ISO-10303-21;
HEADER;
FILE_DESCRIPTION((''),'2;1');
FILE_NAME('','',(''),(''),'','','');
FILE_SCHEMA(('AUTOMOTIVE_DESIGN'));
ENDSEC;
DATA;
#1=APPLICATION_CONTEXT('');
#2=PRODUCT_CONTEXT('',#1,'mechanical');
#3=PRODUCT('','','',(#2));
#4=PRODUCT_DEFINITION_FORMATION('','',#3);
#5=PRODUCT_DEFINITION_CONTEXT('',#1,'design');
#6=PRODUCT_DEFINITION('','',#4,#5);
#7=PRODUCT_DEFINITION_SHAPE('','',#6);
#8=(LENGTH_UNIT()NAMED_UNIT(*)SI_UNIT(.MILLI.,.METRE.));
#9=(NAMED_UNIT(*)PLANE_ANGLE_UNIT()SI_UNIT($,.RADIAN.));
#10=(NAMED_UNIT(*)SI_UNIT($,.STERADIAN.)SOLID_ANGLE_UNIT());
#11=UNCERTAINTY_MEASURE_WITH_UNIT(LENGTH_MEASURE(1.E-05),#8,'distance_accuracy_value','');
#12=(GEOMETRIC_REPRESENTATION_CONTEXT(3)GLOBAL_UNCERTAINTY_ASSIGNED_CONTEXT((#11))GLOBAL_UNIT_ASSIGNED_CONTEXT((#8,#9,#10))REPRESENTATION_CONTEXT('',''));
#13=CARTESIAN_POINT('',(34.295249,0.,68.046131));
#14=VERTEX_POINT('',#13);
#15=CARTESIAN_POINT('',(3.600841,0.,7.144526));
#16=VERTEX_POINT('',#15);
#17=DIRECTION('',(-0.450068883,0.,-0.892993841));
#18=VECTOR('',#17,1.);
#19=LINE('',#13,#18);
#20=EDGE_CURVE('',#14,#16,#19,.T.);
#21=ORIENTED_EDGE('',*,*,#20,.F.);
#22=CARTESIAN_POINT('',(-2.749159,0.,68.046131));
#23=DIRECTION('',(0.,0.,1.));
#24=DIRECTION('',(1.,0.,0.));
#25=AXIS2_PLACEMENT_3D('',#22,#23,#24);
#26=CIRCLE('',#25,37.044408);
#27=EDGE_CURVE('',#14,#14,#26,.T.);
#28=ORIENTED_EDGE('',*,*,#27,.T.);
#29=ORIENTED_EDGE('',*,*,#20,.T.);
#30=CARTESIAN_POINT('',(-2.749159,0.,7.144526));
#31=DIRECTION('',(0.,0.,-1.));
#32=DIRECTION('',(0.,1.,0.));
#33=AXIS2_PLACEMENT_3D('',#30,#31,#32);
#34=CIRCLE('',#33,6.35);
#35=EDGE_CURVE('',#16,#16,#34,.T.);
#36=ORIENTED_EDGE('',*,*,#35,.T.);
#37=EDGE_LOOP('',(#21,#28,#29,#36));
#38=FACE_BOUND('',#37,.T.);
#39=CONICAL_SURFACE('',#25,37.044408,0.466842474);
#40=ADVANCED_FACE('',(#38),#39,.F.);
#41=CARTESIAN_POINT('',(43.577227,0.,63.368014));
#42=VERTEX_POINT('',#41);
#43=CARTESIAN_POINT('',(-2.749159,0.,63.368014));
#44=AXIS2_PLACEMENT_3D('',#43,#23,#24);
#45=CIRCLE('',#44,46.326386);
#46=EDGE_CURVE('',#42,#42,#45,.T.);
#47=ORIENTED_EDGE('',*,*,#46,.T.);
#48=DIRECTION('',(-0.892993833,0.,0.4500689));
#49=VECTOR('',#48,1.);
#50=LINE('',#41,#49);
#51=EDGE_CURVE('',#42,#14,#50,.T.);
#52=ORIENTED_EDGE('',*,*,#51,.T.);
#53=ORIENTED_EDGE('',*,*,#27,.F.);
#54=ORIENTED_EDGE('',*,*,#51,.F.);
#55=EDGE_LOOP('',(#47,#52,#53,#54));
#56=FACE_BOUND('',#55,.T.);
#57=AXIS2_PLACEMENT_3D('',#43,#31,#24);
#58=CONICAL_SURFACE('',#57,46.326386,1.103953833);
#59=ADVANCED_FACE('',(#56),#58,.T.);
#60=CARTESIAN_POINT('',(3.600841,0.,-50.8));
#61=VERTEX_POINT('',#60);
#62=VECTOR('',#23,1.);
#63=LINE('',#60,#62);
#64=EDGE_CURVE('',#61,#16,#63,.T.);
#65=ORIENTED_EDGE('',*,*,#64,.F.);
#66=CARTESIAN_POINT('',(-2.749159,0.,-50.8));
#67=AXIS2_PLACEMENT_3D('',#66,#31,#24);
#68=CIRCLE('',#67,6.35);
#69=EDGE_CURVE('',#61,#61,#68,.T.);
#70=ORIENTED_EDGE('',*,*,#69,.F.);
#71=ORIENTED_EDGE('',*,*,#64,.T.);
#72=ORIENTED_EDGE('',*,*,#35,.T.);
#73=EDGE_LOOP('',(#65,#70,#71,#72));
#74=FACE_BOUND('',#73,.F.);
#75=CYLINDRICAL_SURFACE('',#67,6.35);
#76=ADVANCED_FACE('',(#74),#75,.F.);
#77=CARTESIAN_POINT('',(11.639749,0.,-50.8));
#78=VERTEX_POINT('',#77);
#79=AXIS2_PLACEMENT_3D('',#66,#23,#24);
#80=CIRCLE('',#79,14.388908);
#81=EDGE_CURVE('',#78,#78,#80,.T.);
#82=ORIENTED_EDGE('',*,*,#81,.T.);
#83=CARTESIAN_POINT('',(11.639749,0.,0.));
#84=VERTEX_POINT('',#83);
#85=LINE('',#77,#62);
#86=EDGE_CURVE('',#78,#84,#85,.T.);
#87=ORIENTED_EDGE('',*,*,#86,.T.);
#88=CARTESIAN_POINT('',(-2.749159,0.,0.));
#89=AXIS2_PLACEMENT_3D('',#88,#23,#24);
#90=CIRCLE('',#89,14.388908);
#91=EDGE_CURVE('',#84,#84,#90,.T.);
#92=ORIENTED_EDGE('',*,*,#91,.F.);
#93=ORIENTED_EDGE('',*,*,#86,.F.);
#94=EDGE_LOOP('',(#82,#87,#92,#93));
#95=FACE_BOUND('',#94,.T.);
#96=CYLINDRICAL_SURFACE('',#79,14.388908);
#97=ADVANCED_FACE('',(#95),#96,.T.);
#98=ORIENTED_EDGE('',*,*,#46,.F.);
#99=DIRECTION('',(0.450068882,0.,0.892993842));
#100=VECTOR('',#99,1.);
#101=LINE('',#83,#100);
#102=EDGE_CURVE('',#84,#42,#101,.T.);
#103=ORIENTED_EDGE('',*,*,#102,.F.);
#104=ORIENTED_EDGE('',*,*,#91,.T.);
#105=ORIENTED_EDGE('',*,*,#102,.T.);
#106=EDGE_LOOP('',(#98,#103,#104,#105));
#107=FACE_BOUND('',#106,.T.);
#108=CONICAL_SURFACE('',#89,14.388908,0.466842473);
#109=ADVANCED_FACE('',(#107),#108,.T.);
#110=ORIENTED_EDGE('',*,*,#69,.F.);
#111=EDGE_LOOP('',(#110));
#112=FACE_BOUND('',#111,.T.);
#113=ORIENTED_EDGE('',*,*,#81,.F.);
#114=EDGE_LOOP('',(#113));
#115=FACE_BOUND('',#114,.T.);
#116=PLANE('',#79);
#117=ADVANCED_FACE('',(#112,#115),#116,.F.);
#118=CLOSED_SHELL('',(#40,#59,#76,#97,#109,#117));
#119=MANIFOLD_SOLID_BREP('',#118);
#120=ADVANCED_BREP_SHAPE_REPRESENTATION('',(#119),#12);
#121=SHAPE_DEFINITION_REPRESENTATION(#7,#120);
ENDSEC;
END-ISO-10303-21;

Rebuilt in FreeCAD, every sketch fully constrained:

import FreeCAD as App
import Part
import Sketcher

V = App.Vector
Q = App.Units.Quantity


def add_polygon(sketch, points):
    """Adds a closed chain of lines whose ends are joined by coincident constraints."""
    first, n = sketch.GeometryCount, len(points)
    for a, b in zip(points, points[1:] + points[:1]):
        sketch.addGeometry(Part.LineSegment(App.Vector(*a, 0), App.Vector(*b, 0)), False)
    for i in range(n):
        sketch.addConstraint(Sketcher.Constraint("Coincident", first + i, 2, first + (i + 1) % n, 1))

doc = App.newDocument("Part")
body = doc.addObject("PartDesign::Body", "Body")

# Sketch on XZ plane
sketch1 = body.newObject("Sketcher::SketchObject", "Sketch")
sketch1.AttachmentSupport = (doc.getObject("XZ_Plane"), [""])
sketch1.MapMode = "FlatFace"
add_polygon(sketch1, [(0, 0), (-2.7, 0), (-2.7, -50.8), (11.6, -50.8), (11.6, 0), (43.6, 63.4), (34.3, 68)])  # lines 0-6
sketch1.addGeometry(Part.LineSegment(V(-2.7, -50.8, 0), V(-2.7, 68, 0)), True)  # axis
sketch1.addConstraint([
    Sketcher.Constraint("Horizontal", 0),
    Sketcher.Constraint("Vertical", 1),
    Sketcher.Constraint("Horizontal", 2),
    Sketcher.Constraint("Vertical", 3),
    Sketcher.Constraint("Vertical", 7),
    Sketcher.Constraint("Coincident", 6, 2, -1, 1),
    Sketcher.Constraint("Coincident", 7, 1, 1, 2),
    Sketcher.Constraint("PointOnObject", 3, 2, -1),
    Sketcher.Constraint("Perpendicular", 4, 5),
    Sketcher.Constraint("Perpendicular", 5, 6),
    Sketcher.Constraint("Horizontal", 5, 2, 7, 2),
    Sketcher.Constraint("DistanceY", 1, 2, 1, 1, Q("2 in")),
    Sketcher.Constraint("Distance", 6, Q("3 in")),
    Sketcher.Constraint("DistanceX", 0, 2, 0, 1, Q("2.749159 mm")),
    Sketcher.Constraint("DistanceX", 2, 1, 2, 2, Q("14.388908 mm")),
    Sketcher.Constraint("DistanceY", 7, 1, 7, 2, Q("118.846131 mm")),
])
revolution = body.newObject("PartDesign::Revolution", "Revolution")
revolution.Profile = sketch1
revolution.ReferenceAxis = (sketch1, ["Axis0"])
revolution.Angle = 360

# Sketch on XY plane
sketch2 = body.newObject("Sketcher::SketchObject", "Sketch001")
sketch2.AttachmentSupport = (doc.getObject("XY_Plane"), [""])
sketch2.MapMode = "FlatFace"
sketch2.AttachmentOffset = App.Placement(V(0, 0, -2 * 25.4), App.Rotation())
sketch2.addGeometry(Part.Circle(V(-3, 0, 0), V(0, 0, 1), 6), False)
sketch2.addConstraint([
    Sketcher.Constraint("PointOnObject", 0, 3, -1),
    Sketcher.Constraint("Diameter", 0, Q("0.5 in")),
    Sketcher.Constraint("DistanceX", 0, 3, -1, 1, Q("2.749159 mm")),
])
pocket1 = body.newObject("PartDesign::Pocket", "Pocket")
pocket1.Profile = sketch2
pocket1.Length = Q("2.86 in")
pocket1.Reversed = True

doc.recompute()
